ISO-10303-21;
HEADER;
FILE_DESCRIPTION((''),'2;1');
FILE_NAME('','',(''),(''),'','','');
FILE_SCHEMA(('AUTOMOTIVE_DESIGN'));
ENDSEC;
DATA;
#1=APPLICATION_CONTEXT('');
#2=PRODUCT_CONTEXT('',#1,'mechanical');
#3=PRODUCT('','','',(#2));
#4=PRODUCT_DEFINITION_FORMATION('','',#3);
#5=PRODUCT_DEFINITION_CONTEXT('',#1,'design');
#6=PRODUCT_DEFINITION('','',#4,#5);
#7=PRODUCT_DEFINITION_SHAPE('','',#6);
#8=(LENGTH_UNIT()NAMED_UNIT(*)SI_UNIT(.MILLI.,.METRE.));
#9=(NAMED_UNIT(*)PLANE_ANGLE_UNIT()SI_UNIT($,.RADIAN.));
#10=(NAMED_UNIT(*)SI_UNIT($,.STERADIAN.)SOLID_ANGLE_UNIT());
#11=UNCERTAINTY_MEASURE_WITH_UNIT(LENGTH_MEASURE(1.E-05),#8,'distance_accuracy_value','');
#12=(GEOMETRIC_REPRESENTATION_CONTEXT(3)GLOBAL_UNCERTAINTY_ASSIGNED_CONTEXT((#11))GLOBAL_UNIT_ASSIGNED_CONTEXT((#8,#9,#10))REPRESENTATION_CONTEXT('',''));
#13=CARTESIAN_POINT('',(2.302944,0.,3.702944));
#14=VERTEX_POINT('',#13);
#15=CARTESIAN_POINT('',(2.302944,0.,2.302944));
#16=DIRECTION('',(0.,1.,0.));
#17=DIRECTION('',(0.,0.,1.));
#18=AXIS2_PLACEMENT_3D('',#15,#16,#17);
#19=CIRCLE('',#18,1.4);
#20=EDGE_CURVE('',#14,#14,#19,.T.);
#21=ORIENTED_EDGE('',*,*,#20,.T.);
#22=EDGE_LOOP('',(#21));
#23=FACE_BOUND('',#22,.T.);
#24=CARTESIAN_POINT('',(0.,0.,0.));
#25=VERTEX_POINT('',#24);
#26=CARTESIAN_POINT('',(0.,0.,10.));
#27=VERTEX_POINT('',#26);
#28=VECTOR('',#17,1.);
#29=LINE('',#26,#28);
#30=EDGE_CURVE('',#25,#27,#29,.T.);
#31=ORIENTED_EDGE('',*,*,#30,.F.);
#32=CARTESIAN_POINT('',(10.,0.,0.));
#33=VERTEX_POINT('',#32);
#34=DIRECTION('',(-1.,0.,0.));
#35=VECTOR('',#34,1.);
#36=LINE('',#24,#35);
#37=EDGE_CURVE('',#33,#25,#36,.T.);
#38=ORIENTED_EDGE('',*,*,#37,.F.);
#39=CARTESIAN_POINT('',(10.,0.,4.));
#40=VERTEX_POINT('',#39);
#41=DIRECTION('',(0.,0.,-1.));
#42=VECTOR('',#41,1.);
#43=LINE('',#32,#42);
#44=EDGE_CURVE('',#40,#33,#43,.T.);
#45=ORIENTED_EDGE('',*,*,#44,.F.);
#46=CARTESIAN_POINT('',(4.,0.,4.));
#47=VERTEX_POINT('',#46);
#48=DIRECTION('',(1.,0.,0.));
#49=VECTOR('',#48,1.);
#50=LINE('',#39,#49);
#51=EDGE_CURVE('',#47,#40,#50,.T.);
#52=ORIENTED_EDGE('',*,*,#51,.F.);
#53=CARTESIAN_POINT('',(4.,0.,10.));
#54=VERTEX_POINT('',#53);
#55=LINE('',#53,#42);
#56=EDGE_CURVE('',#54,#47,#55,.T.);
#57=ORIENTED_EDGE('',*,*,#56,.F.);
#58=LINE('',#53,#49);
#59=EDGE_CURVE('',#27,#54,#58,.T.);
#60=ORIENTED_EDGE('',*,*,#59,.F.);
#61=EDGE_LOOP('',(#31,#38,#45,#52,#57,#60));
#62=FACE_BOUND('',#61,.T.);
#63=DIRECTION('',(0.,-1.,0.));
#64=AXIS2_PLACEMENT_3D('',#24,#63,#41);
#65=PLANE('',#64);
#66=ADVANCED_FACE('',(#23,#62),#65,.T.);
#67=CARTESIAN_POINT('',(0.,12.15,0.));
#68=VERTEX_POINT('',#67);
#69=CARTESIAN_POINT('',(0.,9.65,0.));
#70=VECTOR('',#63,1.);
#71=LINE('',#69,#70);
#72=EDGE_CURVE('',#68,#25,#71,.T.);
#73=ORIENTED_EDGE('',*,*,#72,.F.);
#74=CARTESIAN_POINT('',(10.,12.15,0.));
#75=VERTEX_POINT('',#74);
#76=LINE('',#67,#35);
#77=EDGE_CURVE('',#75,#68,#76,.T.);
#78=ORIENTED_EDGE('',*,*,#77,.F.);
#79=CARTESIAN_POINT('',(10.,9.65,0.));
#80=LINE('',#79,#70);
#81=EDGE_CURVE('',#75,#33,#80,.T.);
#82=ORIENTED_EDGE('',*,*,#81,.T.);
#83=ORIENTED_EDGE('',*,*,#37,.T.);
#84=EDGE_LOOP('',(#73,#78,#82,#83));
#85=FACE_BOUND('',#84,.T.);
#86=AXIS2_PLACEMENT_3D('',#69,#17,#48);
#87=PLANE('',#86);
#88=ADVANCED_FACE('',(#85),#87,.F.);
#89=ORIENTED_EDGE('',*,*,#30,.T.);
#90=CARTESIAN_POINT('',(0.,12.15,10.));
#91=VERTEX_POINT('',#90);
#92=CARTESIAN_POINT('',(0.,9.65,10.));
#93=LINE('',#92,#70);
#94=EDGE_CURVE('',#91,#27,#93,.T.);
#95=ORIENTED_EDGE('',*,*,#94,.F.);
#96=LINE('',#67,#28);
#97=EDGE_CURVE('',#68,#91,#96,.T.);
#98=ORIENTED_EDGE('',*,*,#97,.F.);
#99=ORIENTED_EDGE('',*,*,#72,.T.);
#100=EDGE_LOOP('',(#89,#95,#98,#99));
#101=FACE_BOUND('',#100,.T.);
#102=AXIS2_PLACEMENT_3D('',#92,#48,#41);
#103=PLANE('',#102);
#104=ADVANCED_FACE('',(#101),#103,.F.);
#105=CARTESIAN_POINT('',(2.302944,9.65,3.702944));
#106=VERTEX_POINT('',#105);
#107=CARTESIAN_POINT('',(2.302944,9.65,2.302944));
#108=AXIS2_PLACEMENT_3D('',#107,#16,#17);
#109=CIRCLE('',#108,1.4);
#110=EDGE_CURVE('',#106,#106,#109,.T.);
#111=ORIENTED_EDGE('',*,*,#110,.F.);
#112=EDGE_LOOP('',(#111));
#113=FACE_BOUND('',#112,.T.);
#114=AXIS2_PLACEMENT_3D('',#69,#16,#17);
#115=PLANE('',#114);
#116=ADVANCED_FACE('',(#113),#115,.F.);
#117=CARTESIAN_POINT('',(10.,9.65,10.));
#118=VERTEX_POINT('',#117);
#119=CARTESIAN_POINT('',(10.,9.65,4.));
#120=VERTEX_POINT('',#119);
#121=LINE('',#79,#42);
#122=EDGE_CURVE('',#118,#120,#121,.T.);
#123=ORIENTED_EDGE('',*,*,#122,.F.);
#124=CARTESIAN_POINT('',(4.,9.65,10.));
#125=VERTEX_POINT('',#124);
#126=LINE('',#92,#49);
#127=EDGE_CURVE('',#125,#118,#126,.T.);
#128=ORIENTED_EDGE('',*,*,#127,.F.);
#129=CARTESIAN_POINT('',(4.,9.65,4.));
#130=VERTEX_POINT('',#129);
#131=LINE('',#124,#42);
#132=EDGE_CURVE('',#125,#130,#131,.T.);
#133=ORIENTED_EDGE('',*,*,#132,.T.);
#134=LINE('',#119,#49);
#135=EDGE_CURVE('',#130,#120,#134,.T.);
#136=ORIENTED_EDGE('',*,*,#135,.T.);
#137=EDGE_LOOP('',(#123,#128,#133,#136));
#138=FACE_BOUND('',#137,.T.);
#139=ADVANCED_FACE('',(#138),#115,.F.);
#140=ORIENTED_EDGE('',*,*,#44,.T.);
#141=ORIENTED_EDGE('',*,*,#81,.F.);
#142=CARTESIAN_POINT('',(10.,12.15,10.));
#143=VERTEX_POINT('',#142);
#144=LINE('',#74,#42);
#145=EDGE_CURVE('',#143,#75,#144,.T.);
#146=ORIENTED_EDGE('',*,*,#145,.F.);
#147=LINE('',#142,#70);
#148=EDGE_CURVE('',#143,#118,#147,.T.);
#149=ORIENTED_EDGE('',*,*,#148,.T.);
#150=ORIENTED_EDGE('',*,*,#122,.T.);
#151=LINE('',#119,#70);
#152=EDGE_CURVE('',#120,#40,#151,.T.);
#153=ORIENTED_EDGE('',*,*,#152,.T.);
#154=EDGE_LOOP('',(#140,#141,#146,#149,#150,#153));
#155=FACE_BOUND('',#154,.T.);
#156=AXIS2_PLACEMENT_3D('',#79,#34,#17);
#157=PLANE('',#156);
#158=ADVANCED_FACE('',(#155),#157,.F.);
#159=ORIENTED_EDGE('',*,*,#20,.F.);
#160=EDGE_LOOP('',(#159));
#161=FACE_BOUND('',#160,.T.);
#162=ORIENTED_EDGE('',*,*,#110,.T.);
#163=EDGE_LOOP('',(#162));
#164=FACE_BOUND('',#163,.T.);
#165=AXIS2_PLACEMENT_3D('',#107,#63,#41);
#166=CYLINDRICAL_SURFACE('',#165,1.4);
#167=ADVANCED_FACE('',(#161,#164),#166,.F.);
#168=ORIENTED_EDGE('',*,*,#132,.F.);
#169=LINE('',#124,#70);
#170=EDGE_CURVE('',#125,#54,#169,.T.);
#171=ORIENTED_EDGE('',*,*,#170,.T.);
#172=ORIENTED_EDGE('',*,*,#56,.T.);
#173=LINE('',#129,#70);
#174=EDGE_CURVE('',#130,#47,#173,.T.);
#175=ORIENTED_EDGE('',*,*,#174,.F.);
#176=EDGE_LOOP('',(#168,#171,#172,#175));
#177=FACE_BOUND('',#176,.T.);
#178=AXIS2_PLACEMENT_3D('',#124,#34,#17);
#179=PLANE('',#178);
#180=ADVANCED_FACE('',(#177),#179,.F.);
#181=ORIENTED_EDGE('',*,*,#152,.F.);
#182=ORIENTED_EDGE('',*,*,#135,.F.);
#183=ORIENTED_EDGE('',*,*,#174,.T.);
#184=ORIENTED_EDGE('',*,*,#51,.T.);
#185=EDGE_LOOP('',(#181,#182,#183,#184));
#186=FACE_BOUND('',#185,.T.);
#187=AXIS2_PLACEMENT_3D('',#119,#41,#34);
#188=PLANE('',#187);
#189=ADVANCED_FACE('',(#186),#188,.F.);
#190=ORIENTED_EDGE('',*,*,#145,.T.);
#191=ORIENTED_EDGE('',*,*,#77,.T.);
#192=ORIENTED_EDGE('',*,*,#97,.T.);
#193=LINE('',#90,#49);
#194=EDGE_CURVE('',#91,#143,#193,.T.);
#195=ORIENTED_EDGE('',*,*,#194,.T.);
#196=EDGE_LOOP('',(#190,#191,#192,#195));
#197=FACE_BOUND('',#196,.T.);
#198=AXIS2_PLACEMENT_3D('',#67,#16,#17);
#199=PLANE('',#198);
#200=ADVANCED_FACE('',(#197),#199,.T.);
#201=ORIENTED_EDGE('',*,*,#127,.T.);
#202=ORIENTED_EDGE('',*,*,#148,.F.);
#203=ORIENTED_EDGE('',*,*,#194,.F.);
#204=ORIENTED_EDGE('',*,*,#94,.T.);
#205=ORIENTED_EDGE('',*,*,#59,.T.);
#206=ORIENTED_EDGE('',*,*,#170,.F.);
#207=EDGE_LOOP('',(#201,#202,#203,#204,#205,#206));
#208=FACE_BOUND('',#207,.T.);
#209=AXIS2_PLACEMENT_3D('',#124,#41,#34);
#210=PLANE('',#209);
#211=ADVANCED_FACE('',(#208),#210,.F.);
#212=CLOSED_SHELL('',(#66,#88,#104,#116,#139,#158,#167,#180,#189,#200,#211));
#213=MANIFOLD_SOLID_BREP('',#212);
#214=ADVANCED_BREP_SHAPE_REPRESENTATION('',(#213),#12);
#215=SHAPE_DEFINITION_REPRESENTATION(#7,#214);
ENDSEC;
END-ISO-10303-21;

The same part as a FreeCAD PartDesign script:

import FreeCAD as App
import Part
import Sketcher
from FreeCAD import Vector


def add_polygon(sketch, points):
    """Adds a closed chain of lines whose ends are joined by coincident constraints."""
    first, n = sketch.GeometryCount, len(points)
    for a, b in zip(points, points[1:] + points[:1]):
        sketch.addGeometry(Part.LineSegment(App.Vector(*a, 0), App.Vector(*b, 0)), False)
    for i in range(n):
        sketch.addConstraint(Sketcher.Constraint("Coincident", first + i, 2, first + (i + 1) % n, 1))

doc = App.newDocument("Part")
body = doc.addObject("PartDesign::Body", "Body")

# Sketch on XZ plane
sketch1 = doc.addObject("Sketcher::SketchObject", "Sketch")
body.addObject(sketch1)
sketch1.AttachmentSupport = (doc.XZ_Plane, [""])
sketch1.MapMode = "FlatFace"
add_polygon(sketch1, [(10, 0), (0, 0), (0, 10), (4, 10), (4, 4), (10, 4)])  # lines 0-5
sketch1.addGeometry(Part.Circle(Vector(2.3, 2.3, 0), Vector(0, 0, 1), 1.4), False)  # 6
sketch1.addConstraint([
    Sketcher.Constraint("Horizontal", 0),
    Sketcher.Constraint("Vertical", 1),
    Sketcher.Constraint("Horizontal", 2),
    Sketcher.Constraint("Vertical", 3),
    Sketcher.Constraint("Horizontal", 4),
    Sketcher.Constraint("Vertical", 5),
    Sketcher.Constraint("Coincident", 0, 2, -1, 1),
    Sketcher.Constraint("Equal", 0, 1),
    Sketcher.Constraint("Equal", 4, 3),
    Sketcher.Constraint("Diameter", 6, 2.8),
    Sketcher.Constraint("DistanceX", 0, 2, 0, 1, 10.0),
    Sketcher.Constraint("DistanceX", 2, 1, 2, 2, 4.0),
    Sketcher.Constraint("DistanceX", -1, 1, 6, 3, 2.302944),
    Sketcher.Constraint("DistanceY", -1, 1, 6, 3, 2.302944),
])
pad1 = doc.addObject("PartDesign::Pad", "Pad")
body.addObject(pad1)
pad1.Profile = sketch1
pad1.Length = 9.65
pad1.Reversed = True

# Sketch on XZ plane
sketch2 = doc.addObject("Sketcher::SketchObject", "Sketch001")
body.addObject(sketch2)
sketch2.AttachmentSupport = (doc.XZ_Plane, [""])
sketch2.MapMode = "FlatFace"
sketch2.AttachmentOffset = App.Placement(Vector(0, 0, -9.65), App.Rotation())
add_polygon(sketch2, [(0, 0), (0, 10), (10, 10), (10, 0)])  # lines 0-3
sketch2.addConstraint([
    Sketcher.Constraint("Vertical", 0),
    Sketcher.Constraint("Horizontal", 1),
    Sketcher.Constraint("Vertical", 2),
    Sketcher.Constraint("Horizontal", 3),
    Sketcher.Constraint("Coincident", 3, 2, -1, 1),
    Sketcher.Constraint("Equal", 3, 0),
    Sketcher.Constraint("DistanceX", 1, 1, 1, 2, 10.0),
])
pad2 = doc.addObject("PartDesign::Pad", "Pad001")
body.addObject(pad2)
pad2.Profile = sketch2
pad2.Length = 2.5
pad2.Reversed = True

doc.recompute()
